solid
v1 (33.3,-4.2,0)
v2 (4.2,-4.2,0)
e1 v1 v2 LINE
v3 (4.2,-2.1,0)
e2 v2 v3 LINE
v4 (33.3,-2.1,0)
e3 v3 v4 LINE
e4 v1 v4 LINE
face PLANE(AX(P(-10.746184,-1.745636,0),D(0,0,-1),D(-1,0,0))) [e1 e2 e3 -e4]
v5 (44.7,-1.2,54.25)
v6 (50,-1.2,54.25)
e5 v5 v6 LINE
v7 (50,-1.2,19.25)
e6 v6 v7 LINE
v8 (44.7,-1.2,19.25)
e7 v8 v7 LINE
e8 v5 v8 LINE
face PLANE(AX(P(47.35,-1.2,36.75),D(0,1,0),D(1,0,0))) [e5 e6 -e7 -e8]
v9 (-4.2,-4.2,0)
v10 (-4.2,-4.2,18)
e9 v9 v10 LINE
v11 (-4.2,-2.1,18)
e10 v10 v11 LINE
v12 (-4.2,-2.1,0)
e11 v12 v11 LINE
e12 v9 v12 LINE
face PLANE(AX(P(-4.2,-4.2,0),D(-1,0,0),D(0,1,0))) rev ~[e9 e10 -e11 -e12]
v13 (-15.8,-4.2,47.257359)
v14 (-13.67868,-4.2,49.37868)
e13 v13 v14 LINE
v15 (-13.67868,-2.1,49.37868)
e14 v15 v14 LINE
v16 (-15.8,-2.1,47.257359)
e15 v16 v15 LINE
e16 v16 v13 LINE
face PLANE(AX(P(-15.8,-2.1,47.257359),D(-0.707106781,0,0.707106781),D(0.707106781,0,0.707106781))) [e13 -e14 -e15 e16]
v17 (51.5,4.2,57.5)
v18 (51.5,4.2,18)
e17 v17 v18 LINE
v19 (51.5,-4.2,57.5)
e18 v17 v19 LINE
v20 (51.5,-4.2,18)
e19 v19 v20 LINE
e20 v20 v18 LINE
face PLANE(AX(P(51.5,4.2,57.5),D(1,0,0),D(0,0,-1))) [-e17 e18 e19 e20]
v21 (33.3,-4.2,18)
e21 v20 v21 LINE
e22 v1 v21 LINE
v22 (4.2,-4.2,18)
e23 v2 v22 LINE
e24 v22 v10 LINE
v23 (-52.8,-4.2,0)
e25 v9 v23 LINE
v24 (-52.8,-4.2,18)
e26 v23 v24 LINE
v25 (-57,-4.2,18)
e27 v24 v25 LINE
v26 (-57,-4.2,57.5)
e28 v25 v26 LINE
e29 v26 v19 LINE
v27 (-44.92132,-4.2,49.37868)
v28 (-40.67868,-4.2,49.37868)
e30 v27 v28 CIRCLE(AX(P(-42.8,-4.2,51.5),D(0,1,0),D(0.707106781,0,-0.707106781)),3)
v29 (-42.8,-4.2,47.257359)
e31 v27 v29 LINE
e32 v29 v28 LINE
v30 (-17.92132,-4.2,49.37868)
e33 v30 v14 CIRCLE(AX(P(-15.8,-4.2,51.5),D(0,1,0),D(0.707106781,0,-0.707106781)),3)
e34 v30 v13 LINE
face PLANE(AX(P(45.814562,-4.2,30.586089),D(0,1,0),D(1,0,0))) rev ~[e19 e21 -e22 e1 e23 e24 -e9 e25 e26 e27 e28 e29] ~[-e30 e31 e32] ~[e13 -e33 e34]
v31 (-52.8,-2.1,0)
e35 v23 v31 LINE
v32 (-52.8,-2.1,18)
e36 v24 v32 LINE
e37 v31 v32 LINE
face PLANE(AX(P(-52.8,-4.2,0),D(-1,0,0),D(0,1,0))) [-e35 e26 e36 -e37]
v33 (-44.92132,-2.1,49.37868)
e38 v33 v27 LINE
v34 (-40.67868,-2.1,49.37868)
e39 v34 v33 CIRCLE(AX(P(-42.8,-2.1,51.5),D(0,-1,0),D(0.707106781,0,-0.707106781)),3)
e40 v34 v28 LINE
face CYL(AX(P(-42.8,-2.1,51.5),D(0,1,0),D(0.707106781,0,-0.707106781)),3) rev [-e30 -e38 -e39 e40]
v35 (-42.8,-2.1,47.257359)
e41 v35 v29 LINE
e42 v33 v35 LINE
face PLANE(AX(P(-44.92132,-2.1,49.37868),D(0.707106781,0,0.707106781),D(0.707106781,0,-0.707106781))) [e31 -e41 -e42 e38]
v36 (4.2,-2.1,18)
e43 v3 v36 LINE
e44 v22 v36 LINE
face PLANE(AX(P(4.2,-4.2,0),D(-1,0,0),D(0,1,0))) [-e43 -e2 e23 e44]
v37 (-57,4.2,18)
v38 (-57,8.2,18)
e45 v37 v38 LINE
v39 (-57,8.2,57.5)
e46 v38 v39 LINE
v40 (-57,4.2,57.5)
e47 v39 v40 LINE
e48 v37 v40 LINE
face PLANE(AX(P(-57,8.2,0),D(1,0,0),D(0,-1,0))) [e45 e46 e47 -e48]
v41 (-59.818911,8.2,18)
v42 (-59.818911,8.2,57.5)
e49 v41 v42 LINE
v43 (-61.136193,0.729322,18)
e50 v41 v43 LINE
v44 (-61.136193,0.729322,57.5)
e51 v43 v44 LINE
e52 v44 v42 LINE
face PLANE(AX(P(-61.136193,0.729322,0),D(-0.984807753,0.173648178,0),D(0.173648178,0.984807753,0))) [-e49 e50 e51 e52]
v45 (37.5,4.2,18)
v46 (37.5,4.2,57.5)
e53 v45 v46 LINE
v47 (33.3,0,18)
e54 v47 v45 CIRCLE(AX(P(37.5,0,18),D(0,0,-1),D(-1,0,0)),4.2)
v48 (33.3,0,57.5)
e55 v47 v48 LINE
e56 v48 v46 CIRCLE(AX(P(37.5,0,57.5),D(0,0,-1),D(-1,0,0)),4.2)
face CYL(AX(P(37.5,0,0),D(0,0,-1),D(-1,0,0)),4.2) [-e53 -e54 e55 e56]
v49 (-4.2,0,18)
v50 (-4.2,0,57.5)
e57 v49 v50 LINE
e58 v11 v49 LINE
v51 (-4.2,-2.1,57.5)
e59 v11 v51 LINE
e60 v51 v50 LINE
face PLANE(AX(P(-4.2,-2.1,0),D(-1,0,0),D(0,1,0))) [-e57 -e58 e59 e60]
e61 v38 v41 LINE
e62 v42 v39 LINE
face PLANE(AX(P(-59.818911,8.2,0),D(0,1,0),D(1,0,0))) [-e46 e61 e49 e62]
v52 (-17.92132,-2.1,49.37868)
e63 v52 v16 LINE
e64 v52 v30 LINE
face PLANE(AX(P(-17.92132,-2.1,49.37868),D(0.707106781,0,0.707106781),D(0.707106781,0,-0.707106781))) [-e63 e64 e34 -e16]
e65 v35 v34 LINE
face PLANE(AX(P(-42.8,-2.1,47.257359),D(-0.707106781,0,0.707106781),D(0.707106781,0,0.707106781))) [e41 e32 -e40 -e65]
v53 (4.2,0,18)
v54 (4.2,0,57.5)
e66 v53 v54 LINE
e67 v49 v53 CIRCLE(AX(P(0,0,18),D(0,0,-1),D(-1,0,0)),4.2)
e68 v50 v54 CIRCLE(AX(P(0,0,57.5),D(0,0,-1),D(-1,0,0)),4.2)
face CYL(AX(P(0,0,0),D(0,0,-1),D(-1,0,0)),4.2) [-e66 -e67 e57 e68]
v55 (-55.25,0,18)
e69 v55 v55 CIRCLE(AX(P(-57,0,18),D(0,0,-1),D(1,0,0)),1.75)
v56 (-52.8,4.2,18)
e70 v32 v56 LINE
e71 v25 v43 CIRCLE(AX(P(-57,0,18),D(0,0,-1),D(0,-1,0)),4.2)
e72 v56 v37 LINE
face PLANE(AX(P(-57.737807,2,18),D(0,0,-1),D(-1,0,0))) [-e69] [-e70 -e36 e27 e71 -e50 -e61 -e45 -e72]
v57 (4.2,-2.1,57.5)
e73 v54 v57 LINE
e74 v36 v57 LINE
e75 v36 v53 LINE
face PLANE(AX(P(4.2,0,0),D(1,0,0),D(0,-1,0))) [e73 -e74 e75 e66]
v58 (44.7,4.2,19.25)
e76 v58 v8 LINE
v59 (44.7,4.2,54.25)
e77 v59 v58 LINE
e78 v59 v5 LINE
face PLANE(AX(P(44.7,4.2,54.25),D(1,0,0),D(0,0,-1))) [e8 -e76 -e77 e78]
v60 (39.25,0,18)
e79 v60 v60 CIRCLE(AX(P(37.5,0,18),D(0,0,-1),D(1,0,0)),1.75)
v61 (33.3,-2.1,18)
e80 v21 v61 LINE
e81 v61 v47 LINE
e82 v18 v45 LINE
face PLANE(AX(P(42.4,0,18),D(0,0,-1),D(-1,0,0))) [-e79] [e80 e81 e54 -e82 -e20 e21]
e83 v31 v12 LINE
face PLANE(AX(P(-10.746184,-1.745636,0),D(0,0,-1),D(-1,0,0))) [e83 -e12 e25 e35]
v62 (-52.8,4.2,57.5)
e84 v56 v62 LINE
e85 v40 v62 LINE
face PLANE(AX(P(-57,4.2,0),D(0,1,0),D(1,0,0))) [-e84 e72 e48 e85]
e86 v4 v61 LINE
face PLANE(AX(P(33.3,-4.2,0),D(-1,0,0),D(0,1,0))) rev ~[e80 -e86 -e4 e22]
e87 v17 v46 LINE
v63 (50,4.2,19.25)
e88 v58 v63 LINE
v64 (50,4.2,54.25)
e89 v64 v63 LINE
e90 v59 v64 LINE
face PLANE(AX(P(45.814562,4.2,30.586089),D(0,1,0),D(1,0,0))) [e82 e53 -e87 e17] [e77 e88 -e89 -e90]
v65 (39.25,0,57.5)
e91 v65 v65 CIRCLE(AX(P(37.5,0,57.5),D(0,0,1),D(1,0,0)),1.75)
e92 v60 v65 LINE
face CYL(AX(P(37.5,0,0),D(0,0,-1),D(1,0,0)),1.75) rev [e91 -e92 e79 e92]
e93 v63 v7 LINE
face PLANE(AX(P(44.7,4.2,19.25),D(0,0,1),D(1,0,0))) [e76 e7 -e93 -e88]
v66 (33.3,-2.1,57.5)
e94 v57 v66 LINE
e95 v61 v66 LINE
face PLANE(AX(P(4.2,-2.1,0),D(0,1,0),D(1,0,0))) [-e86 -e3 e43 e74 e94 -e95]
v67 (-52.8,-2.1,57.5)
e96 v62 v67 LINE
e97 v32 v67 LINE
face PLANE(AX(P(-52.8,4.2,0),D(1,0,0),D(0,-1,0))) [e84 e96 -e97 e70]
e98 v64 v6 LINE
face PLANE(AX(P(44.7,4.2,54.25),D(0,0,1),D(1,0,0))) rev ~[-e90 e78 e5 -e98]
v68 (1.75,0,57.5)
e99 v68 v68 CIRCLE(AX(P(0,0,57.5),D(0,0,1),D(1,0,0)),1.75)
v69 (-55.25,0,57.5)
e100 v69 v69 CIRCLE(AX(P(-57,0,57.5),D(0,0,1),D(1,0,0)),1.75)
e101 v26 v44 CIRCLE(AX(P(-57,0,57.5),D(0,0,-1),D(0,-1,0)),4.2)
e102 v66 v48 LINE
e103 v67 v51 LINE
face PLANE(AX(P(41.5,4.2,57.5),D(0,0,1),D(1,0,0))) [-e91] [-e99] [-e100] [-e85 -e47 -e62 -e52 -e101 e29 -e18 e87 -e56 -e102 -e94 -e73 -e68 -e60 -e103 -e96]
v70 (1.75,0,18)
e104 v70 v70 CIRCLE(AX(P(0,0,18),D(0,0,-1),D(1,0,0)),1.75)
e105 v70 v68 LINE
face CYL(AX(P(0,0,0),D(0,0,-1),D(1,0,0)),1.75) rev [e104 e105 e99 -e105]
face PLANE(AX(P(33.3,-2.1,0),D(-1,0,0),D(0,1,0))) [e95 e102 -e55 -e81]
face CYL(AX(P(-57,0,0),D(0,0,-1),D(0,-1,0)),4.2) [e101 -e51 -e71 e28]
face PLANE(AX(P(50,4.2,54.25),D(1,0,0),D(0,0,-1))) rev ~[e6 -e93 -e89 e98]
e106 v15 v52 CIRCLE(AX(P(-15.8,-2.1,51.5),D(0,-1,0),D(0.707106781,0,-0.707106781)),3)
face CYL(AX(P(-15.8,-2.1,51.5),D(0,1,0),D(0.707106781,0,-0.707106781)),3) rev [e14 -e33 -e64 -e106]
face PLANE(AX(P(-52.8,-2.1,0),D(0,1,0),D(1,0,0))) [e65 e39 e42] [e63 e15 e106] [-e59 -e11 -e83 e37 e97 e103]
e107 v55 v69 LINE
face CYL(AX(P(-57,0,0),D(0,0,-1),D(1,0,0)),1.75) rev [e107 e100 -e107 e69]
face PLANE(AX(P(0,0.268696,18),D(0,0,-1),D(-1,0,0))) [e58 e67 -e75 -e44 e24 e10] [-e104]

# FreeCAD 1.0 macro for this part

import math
import FreeCAD as App
import Part
import Sketcher

V = App.Vector
Q = App.Units.Quantity


def add_polygon(sketch, points):
    """Adds a closed chain of lines whose ends are joined by coincident constraints."""
    first, n = sketch.GeometryCount, len(points)
    for a, b in zip(points, points[1:] + points[:1]):
        sketch.addGeometry(Part.LineSegment(App.Vector(*a, 0), App.Vector(*b, 0)), False)
    for i in range(n):
        sketch.addConstraint(Sketcher.Constraint("Coincident", first + i, 2, first + (i + 1) % n, 1))

doc = App.newDocument("Part")
params = doc.addObject("Spreadsheet::Sheet", "Params")
for row, (alias, value) in enumerate([
    ("sketch1_diameter", "3.5 mm"),
    ("sketch1_radius", "4.2 mm"),
    ("sketch1_width", "4 mm"),
    ("sketch1_width2", "48.6 mm"),
    ("sketch1_width3", "4.2 mm"),
    ("pad1_length", "57.5 mm"),
    ("sketch2_width", "10 mm"),
    ("sketch2_height", "40 mm"),
    ("sketch2_height2", "57.5 mm"),
    ("pad2_length", "8.4 mm"),
    ("sketch3_height", "35 mm"),
    ("sketch3_width", "5.3 mm"),
    ("pocket1_length", "5.4 mm"),
    ("sketch4_radius", "3 mm"),
    ("sketch5_width", "18.2 mm"),
    ("sketch5_width2", "8.4 mm"),
    ("sketch5_height", "12.4 mm"),
    ("pocket3_length", "18 mm"),
    ("linearpattern_pitch", "27 mm"),
], start=1):
    params.set(f"A{row}", alias)
    params.set(f"B{row}", "=" + value)
    params.setAlias(f"B{row}", alias)

body = doc.addObject("PartDesign::Body", "Body")

# Sketch on XY plane
sketch1 = body.newObject("Sketcher::SketchObject", "Sketch")
sketch1.AttachmentSupport = (doc.getObject("XY_Plane"), [""])
sketch1.MapMode = "FlatFace"
sketch1.addGeometry(Part.LineSegment(V(-4.2, -2.1, 0), V(-52.8, -2.1, 0)), False)
sketch1.addGeometry(Part.LineSegment(V(-52.8, -2.1, 0), V(-52.8, 4.2, 0)), False)
sketch1.addGeometry(Part.LineSegment(V(-52.8, 4.2, 0), V(-57, 4.2, 0)), False)
sketch1.addGeometry(Part.LineSegment(V(-57, 4.2, 0), V(-57, 8.2, 0)), False)
sketch1.addGeometry(Part.LineSegment(V(-57, 8.2, 0), V(-59.8, 8.2, 0)), False)
sketch1.addGeometry(Part.LineSegment(V(-59.8, 8.2, 0), V(-61.1, 0.7, 0)), False)
sketch1.addGeometry(Part.ArcOfCircle(Part.Circle(V(-57, 0, 0), V(0, 0, 1), 4.2), math.radians(170), math.radians(270)), False)
sketch1.addGeometry(Part.LineSegment(V(-57, -4.2, 0), V(41.5, -4.2, 0)), False)
sketch1.addGeometry(Part.LineSegment(V(41.5, -4.2, 0), V(41.5, 4.2, 0)), False)
sketch1.addGeometry(Part.LineSegment(V(41.5, 4.2, 0), V(37.5, 4.2, 0)), False)
sketch1.addGeometry(Part.ArcOfCircle(Part.Circle(V(37.5, 0, 0), V(0, 0, 1), 4.2), math.radians(90), math.radians(180)), False)
sketch1.addGeometry(Part.LineSegment(V(33.3, 0, 0), V(33.3, -2.1, 0)), False)
sketch1.addGeometry(Part.LineSegment(V(33.3, -2.1, 0), V(4.2, -2.1, 0)), False)
sketch1.addGeometry(Part.LineSegment(V(4.2, -2.1, 0), V(4.2, 0, 0)), False)
sketch1.addGeometry(Part.ArcOfCircle(Part.Circle(V(0, 0, 0), V(0, 0, 1), 4.2), math.radians(0), math.radians(180)), False)
sketch1.addGeometry(Part.LineSegment(V(-4.2, 0, 0), V(-4.2, -2.1, 0)), False)
sketch1.addGeometry(Part.Circle(V(37.5, 0, 0), V(0, 0, 1), 1.8), False)
sketch1.addGeometry(Part.Circle(V(0, 0, 0), V(0, 0, 1), 1.8), False)
sketch1.addGeometry(Part.Circle(V(-57, 0, 0), V(0, 0, 1), 1.8), False)
sketch1.addConstraint(Sketcher.Constraint("Coincident", 0, 2, 1, 1))
sketch1.addConstraint(Sketcher.Constraint("Coincident", 1, 2, 2, 1))
sketch1.addConstraint(Sketcher.Constraint("Coincident", 2, 2, 3, 1))
sketch1.addConstraint(Sketcher.Constraint("Coincident", 3, 2, 4, 1))
sketch1.addConstraint(Sketcher.Constraint("Coincident", 4, 2, 5, 1))
sketch1.addConstraint(Sketcher.Constraint("Tangent", 5, 2, 6, 1))
sketch1.addConstraint(Sketcher.Constraint("Tangent", 6, 2, 7, 1))
sketch1.addConstraint(Sketcher.Constraint("Coincident", 7, 2, 8, 1))
sketch1.addConstraint(Sketcher.Constraint("Coincident", 8, 2, 9, 1))
sketch1.addConstraint(Sketcher.Constraint("Tangent", 9, 2, 10, 1))
sketch1.addConstraint(Sketcher.Constraint("Tangent", 10, 2, 11, 1))
sketch1.addConstraint(Sketcher.Constraint("Coincident", 11, 2, 12, 1))
sketch1.addConstraint(Sketcher.Constraint("Coincident", 12, 2, 13, 1))
sketch1.addConstraint(Sketcher.Constraint("Tangent", 13, 2, 14, 1))
sketch1.addConstraint(Sketcher.Constraint("Tangent", 14, 2, 15, 1))
sketch1.addConstraint(Sketcher.Constraint("Coincident", 15, 2, 0, 1))
sketch1.addConstraint(Sketcher.Constraint("Horizontal", 0))
sketch1.addConstraint(Sketcher.Constraint("Vertical", 1))
sketch1.addConstraint(Sketcher.Constraint("Horizontal", 2))
sketch1.addConstraint(Sketcher.Constraint("Vertical", 3))
sketch1.addConstraint(Sketcher.Constraint("Horizontal", 4))
sketch1.addConstraint(Sketcher.Constraint("Horizontal", 7))
sketch1.addConstraint(Sketcher.Constraint("Vertical", 8))
sketch1.addConstraint(Sketcher.Constraint("Horizontal", 9))
sketch1.addConstraint(Sketcher.Constraint("Vertical", 11))
sketch1.addConstraint(Sketcher.Constraint("Horizontal", 12))
sketch1.addConstraint(Sketcher.Constraint("Vertical", 13))
sketch1.addConstraint(Sketcher.Constraint("Vertical", 15))
sketch1.addConstraint(Sketcher.Constraint("Coincident", 14, 3, -1, 1))
sketch1.addConstraint(Sketcher.Constraint("Coincident", 17, 3, -1, 1))
sketch1.addConstraint(Sketcher.Constraint("Coincident", 16, 3, 10, 3))
sketch1.addConstraint(Sketcher.Constraint("Coincident", 18, 3, 6, 3))
sketch1.addConstraint(Sketcher.Constraint("Equal", 6, 10))
sketch1.addConstraint(Sketcher.Constraint("Equal", 10, 14))
sketch1.addConstraint(Sketcher.Constraint("Equal", 16, 17))
sketch1.addConstraint(Sketcher.Constraint("Equal", 17, 18))
sketch1.addConstraint(Sketcher.Constraint("Symmetric", 2, 2, 6, 2, -1))
sketch1.addConstraint(Sketcher.Constraint("PointOnObject", 6, 3, -1))
sketch1.addConstraint(Sketcher.Constraint("PointOnObject", 10, 3, -1))
sketch1.addConstraint(Sketcher.Constraint("Horizontal", 0, 2, 11, 2))
sketch1.addConstraint(Sketcher.Constraint("Equal", 9, 3))
sketch1.addConstraint(Sketcher.Constraint("Diameter", 16, 3.5))
sketch1.addConstraint(Sketcher.Constraint("Radius", 6, 4.2))
sketch1.addConstraint(Sketcher.Constraint("DistanceX", 9, 2, 9, 1, 4.0))
sketch1.addConstraint(Sketcher.Constraint("Angle", 5, Q("-100 deg")))
sketch1.addConstraint(Sketcher.Constraint("DistanceX", 0, 2, 0, 1, 48.6))
sketch1.addConstraint(Sketcher.Constraint("DistanceX", 2, 2, 2, 1, 4.2))
sketch1.addConstraint(Sketcher.Constraint("DistanceX", 7, 1, 7, 2, 98.5))
sketch1.addConstraint(Sketcher.Constraint("DistanceY", 1, 1, 1, 2, 6.3))
sketch1.setExpression("Constraints[41]", "Params.sketch1_diameter")
sketch1.setExpression("Constraints[42]", "Params.sketch1_radius")
sketch1.setExpression("Constraints[43]", "Params.sketch1_width")
sketch1.setExpression("Constraints[45]", "Params.sketch1_width2")
sketch1.setExpression("Constraints[46]", "Params.sketch1_width3")
pad1 = body.newObject("PartDesign::Pad", "Pad")
pad1.Profile = sketch1
pad1.setExpression("Length", "Params.pad1_length")

# Sketch on XZ plane
sketch2 = body.newObject("Sketcher::SketchObject", "Sketch001")
sketch2.AttachmentSupport = (doc.getObject("XZ_Plane"), [""])
sketch2.MapMode = "FlatFace"
sketch2.AttachmentOffset = App.Placement(V(0, 0, -4.2), App.Rotation())
add_polygon(sketch2, [(42, 58), (52, 58), (52, 18), (42, 0)])  # lines 0-3
sketch2.addConstraint(Sketcher.Constraint("Horizontal", 0))
sketch2.addConstraint(Sketcher.Constraint("Vertical", 1))
sketch2.addConstraint(Sketcher.Constraint("Vertical", 3))
sketch2.addConstraint(Sketcher.Constraint("PointOnObject", 2, 2, -1))
sketch2.addConstraint(Sketcher.Constraint("DistanceX", 0, 1, 0, 2, 10.0))
sketch2.addConstraint(Sketcher.Constraint("DistanceY", 1, 2, 1, 1, 40.0))
sketch2.addConstraint(Sketcher.Constraint("DistanceY", 3, 1, 3, 2, 57.5))
sketch2.addConstraint(Sketcher.Constraint("DistanceX", -1, 1, 0, 2, 51.5))
sketch2.setExpression("Constraints[8]", "Params.sketch2_width")
sketch2.setExpression("Constraints[9]", "Params.sketch2_height")
sketch2.setExpression("Constraints[10]", "Params.sketch2_height2")
pad2 = body.newObject("PartDesign::Pad", "Pad001")
pad2.Profile = sketch2
pad2.setExpression("Length", "Params.pad2_length")

# Sketch on XZ plane
sketch3 = body.newObject("Sketcher::SketchObject", "Sketch002")
sketch3.AttachmentSupport = (doc.getObject("XZ_Plane"), [""])
sketch3.MapMode = "FlatFace"
sketch3.AttachmentOffset = App.Placement(V(0, 0, -4.2), App.Rotation())
add_polygon(sketch3, [(45, 19), (45, 54), (50, 54), (50, 19)])  # lines 0-3
sketch3.addConstraint(Sketcher.Constraint("Vertical", 0))
sketch3.addConstraint(Sketcher.Constraint("Horizontal", 1))
sketch3.addConstraint(Sketcher.Constraint("Vertical", 2))
sketch3.addConstraint(Sketcher.Constraint("Horizontal", 3))
sketch3.addConstraint(Sketcher.Constraint("DistanceY", 0, 1, 0, 2, 35.0))
sketch3.addConstraint(Sketcher.Constraint("DistanceX", 1, 1, 1, 2, 5.3))
sketch3.addConstraint(Sketcher.Constraint("DistanceX", -1, 1, 1, 2, 50.0))
sketch3.addConstraint(Sketcher.Constraint("DistanceY", -1, 1, 0, 2, 54.25))
sketch3.setExpression("Constraints[8]", "Params.sketch3_height")
sketch3.setExpression("Constraints[9]", "Params.sketch3_width")
pocket1 = body.newObject("PartDesign::Pocket", "Pocket")
pocket1.Profile = sketch3
pocket1.setExpression("Length", "Params.pocket1_length")
pocket1.Reversed = True

# Sketch on XZ plane
sketch4 = body.newObject("Sketcher::SketchObject", "Sketch003")
sketch4.AttachmentSupport = (doc.getObject("XZ_Plane"), [""])
sketch4.MapMode = "FlatFace"
sketch4.AttachmentOffset = App.Placement(V(0, 0, 2.1), App.Rotation())
sketch4.addGeometry(Part.LineSegment(V(-42.8, 47.3, 0), V(-44.9, 49.4, 0)), False)
sketch4.addGeometry(Part.ArcOfCircle(Part.Circle(V(-42.8, 51.5, 0), V(0, 0, 1), 3), math.radians(-45), math.radians(225)), False)
sketch4.addGeometry(Part.LineSegment(V(-40.7, 49.4, 0), V(-42.8, 47.3, 0)), False)
sketch4.addConstraint(Sketcher.Constraint("Tangent", 0, 2, 1, 2))
sketch4.addConstraint(Sketcher.Constraint("Tangent", 1, 1, 2, 1))
sketch4.addConstraint(Sketcher.Constraint("Coincident", 2, 2, 0, 1))
sketch4.addConstraint(Sketcher.Constraint("Perpendicular", 0, 2))
sketch4.addConstraint(Sketcher.Constraint("Horizontal", 0, 2, 1, 1))
sketch4.addConstraint(Sketcher.Constraint("Radius", 1, 3.0))
sketch4.addConstraint(Sketcher.Constraint("DistanceX", 1, 3, -1, 1, 42.8))
sketch4.addConstraint(Sketcher.Constraint("DistanceY", -1, 1, 1, 3, 51.5))
sketch4.setExpression("Constraints[5]", "Params.sketch4_radius")
pocket2 = body.newObject("PartDesign::Pocket", "Pocket001")
pocket2.Profile = sketch4
pocket2.Type = "ThroughAll"
pocket2.Reversed = True

# Sketch on XY plane
sketch5 = body.newObject("Sketcher::SketchObject", "Sketch004")
sketch5.AttachmentSupport = (doc.getObject("XY_Plane"), [""])
sketch5.MapMode = "FlatFace"
add_polygon(sketch5, [(52, 4), (52, -4), (33, -4), (33, 4)])  # lines 0-3
add_polygon(sketch5, [(4, 5), (4, -4), (-4, -4), (-4, 5)])  # lines 4-7
add_polygon(sketch5, [(-53, 8), (-53, -4), (-63, -4), (-63, 8)])  # lines 8-11
sketch5.addConstraint(Sketcher.Constraint("Vertical", 0))
sketch5.addConstraint(Sketcher.Constraint("Horizontal", 1))
sketch5.addConstraint(Sketcher.Constraint("Vertical", 2))
sketch5.addConstraint(Sketcher.Constraint("Horizontal", 3))
sketch5.addConstraint(Sketcher.Constraint("Vertical", 4))
sketch5.addConstraint(Sketcher.Constraint("Horizontal", 5))
sketch5.addConstraint(Sketcher.Constraint("Vertical", 6))
sketch5.addConstraint(Sketcher.Constraint("Horizontal", 7))
sketch5.addConstraint(Sketcher.Constraint("Vertical", 8))
sketch5.addConstraint(Sketcher.Constraint("Horizontal", 9))
sketch5.addConstraint(Sketcher.Constraint("Vertical", 10))
sketch5.addConstraint(Sketcher.Constraint("Horizontal", 11))
sketch5.addConstraint(Sketcher.Constraint("Horizontal", 1, 2, 4, 2))
sketch5.addConstraint(Sketcher.Constraint("Horizontal", 5, 2, 8, 2))
sketch5.addConstraint(Sketcher.Constraint("Equal", 7, 0))
sketch5.addConstraint(Sketcher.Constraint("DistanceX", 1, 2, 1, 1, 18.2))
sketch5.addConstraint(Sketcher.Constraint("DistanceX", 5, 2, 5, 1, 8.4))
sketch5.addConstraint(Sketcher.Constraint("DistanceY", 8, 2, 8, 1, 12.4))
sketch5.addConstraint(Sketcher.Constraint("DistanceX", 8, 2, 4, 2, 57.0))
sketch5.addConstraint(Sketcher.Constraint("DistanceX", -1, 1, 0, 2, 51.5))
sketch5.addConstraint(Sketcher.Constraint("DistanceY", 0, 2, -1, 1, 4.2))
sketch5.addConstraint(Sketcher.Constraint("DistanceX", -1, 1, 4, 2, 4.2))
sketch5.addConstraint(Sketcher.Constraint("DistanceX", 9, 2, 9, 1, 9.875614))
sketch5.addConstraint(Sketcher.Constraint("DistanceY", 4, 2, 4, 1, 8.937392))
sketch5.setExpression("Constraints[27]", "Params.sketch5_width")
sketch5.setExpression("Constraints[28]", "Params.sketch5_width2")
sketch5.setExpression("Constraints[29]", "Params.sketch5_height")
pocket3 = body.newObject("PartDesign::Pocket", "Pocket002")
pocket3.Profile = sketch5
pocket3.setExpression("Length", "Params.pocket3_length")
pocket3.Reversed = True
doc.recompute()

linearpattern = body.newObject("PartDesign::LinearPattern", "LinearPattern")
linearpattern.Originals = [pocket2]
linearpattern.Direction = (doc.getObject("X_Axis"), [""])
linearpattern.Mode = "offset"
linearpattern.setExpression("Offset", "Params.linearpattern_pitch")
linearpattern.Occurrences = 2
body.Tip = linearpattern

doc.recompute()
